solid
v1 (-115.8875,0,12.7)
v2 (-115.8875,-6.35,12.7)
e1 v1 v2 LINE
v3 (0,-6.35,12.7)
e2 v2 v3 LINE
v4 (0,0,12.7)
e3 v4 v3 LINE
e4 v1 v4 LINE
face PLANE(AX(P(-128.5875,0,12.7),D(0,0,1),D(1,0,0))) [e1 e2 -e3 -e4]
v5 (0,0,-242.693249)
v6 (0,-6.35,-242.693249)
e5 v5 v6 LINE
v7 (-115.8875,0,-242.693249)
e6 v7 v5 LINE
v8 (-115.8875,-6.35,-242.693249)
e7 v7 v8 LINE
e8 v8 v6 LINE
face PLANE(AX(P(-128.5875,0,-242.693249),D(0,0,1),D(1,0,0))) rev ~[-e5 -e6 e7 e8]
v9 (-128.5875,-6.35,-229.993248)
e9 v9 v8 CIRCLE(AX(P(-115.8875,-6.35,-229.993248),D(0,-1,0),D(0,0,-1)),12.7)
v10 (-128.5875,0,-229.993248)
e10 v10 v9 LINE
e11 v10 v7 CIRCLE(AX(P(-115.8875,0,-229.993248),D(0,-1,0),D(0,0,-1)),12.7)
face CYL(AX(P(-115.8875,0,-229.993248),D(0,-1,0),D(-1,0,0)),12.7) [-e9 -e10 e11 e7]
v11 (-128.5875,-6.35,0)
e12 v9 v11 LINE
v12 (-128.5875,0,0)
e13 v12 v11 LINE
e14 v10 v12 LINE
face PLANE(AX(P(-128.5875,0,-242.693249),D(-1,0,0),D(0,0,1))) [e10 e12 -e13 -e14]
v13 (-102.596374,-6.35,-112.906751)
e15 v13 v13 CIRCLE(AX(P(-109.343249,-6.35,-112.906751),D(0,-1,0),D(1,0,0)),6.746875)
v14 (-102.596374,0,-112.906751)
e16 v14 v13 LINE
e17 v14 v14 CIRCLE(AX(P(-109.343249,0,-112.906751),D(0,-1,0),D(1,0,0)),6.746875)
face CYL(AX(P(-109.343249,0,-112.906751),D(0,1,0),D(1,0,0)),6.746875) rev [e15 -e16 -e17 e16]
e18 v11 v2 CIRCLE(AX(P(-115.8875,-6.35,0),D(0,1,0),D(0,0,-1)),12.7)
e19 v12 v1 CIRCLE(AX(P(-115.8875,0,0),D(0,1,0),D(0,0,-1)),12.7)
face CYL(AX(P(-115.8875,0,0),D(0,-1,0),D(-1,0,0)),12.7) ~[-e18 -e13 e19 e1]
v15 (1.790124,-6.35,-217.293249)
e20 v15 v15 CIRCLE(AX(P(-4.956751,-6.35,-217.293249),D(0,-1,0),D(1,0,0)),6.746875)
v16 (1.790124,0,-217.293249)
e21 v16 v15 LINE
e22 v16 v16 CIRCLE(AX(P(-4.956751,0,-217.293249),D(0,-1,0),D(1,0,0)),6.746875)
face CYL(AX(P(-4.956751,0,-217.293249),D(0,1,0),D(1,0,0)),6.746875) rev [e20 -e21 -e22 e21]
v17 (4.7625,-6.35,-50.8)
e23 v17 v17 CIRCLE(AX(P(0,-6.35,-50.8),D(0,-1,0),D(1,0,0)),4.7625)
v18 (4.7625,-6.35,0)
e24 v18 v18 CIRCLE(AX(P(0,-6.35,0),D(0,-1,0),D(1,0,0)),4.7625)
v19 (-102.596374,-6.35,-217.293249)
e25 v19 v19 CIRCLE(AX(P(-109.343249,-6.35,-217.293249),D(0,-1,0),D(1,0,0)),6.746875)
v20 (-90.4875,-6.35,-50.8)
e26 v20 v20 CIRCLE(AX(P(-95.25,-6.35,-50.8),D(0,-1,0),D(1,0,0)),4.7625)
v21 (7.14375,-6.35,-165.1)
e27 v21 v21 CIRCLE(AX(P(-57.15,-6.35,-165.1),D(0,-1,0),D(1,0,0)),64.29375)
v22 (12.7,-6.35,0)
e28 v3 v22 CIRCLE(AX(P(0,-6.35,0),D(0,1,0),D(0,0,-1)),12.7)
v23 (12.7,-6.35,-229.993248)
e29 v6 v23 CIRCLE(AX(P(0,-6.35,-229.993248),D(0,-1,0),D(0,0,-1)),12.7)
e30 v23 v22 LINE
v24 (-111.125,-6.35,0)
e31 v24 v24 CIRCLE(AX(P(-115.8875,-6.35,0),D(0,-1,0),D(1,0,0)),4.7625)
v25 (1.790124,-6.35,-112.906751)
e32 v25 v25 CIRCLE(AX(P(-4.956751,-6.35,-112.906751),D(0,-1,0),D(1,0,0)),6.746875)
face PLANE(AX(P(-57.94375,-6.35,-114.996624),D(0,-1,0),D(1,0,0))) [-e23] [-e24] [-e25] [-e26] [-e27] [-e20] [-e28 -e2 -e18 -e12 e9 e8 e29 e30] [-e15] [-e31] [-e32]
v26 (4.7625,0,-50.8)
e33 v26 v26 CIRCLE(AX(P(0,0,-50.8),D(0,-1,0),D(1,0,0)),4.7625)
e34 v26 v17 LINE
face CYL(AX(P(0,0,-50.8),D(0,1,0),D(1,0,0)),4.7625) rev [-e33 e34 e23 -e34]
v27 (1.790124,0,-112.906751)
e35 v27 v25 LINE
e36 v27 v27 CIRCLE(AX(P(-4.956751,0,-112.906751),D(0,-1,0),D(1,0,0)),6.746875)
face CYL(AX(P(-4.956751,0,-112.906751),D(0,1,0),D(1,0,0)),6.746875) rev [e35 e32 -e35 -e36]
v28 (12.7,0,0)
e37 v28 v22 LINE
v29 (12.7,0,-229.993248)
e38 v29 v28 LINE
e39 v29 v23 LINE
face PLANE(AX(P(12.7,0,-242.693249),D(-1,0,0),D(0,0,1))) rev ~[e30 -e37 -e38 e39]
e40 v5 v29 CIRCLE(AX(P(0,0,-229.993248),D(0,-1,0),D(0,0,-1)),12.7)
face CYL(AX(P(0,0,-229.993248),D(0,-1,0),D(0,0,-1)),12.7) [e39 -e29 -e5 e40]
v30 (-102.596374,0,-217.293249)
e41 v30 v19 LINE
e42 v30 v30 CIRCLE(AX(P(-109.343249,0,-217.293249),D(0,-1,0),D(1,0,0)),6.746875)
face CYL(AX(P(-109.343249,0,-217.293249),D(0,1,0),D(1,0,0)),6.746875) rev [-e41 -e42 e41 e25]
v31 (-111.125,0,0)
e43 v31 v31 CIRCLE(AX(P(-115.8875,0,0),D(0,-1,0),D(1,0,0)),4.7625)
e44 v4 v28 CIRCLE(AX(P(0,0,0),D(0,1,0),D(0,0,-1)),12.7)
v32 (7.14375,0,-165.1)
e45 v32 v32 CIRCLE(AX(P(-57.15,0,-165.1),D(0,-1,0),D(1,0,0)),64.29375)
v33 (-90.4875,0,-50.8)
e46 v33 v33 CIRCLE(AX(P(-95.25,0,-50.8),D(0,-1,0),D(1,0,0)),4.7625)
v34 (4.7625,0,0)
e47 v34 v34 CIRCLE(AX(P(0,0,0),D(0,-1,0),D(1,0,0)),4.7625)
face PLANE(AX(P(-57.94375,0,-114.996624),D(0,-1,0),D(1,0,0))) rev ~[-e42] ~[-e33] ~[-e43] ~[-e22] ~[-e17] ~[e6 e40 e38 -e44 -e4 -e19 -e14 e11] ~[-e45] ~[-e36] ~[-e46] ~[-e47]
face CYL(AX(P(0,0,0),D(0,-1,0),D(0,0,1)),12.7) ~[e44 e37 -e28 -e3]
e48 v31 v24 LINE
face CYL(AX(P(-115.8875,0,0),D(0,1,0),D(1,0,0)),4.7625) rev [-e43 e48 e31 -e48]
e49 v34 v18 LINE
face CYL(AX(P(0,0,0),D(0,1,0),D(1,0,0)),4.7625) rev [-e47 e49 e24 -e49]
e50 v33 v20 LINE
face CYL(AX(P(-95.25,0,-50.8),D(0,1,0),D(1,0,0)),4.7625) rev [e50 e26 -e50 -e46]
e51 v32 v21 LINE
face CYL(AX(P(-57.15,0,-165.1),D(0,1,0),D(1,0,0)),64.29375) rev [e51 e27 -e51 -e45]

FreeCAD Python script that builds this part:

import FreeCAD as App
import Part
import Sketcher
Q = App.Units.Quantity


def edges_at(feature, points):
    """Names of the edges that pass closest to the given points."""
    edges = feature.Shape.Edges
    near = lambda p: min(range(len(edges)), key=lambda i: edges[i].distToShape(Part.Vertex(*p))[0])
    return sorted({f"Edge{near(p) + 1}" for p in points})

doc = App.newDocument("Part")
body = doc.addObject("PartDesign::Body", "Body")

sketch1 = body.newObject("Sketcher::SketchObject", "Sketch")
sketch1.AttachmentSupport = (doc.getObject("XZ_Plane"), [""])
sketch1.MapMode = "FlatFace"
sketch1.addGeometry([
    Part.LineSegment(App.Vector(-128.6, 12.7, 0), App.Vector(-128.6, -242.7, 0)),
    Part.LineSegment(App.Vector(-128.6, -242.7, 0), App.Vector(12.7, -242.7, 0)),
    Part.LineSegment(App.Vector(12.7, -242.7, 0), App.Vector(12.7, 12.7, 0)),
    Part.LineSegment(App.Vector(12.7, 12.7, 0), App.Vector(-128.6, 12.7, 0)),
    Part.Circle(App.Vector(-109.3, -217.3, 0), App.Vector(0, 0, 1), 6.7),
    Part.Circle(App.Vector(-109.3, -112.9, 0), App.Vector(0, 0, 1), 6.7),
    Part.Circle(App.Vector(-5, -217.3, 0), App.Vector(0, 0, 1), 6.7),
    Part.Circle(App.Vector(-57.1, -165.1, 0), App.Vector(0, 0, 1), 64.3),
    Part.Circle(App.Vector(-5, -112.9, 0), App.Vector(0, 0, 1), 6.7),
    Part.Circle(App.Vector(-95.2, -50.8, 0), App.Vector(0, 0, 1), 4.8),
    Part.Circle(App.Vector(-115.9, 0, 0), App.Vector(0, 0, 1), 4.8),
    Part.Circle(App.Vector(0, -50.8, 0), App.Vector(0, 0, 1), 4.8),
    Part.Circle(App.Vector(0, 0, 0), App.Vector(0, 0, 1), 4.8),
], False)
sketch1.addConstraint([
    Sketcher.Constraint("Coincident", 0, 2, 1, 1),
    Sketcher.Constraint("Coincident", 1, 2, 2, 1),
    Sketcher.Constraint("Coincident", 2, 2, 3, 1),
    Sketcher.Constraint("Coincident", 3, 2, 0, 1),
    Sketcher.Constraint("Vertical", 0),
    Sketcher.Constraint("Horizontal", 1),
    Sketcher.Constraint("Vertical", 2),
    Sketcher.Constraint("Horizontal", 3),
    Sketcher.Constraint("Coincident", 12, 3, -1, 1),
    Sketcher.Constraint("Equal", 4, 5),
    Sketcher.Constraint("Equal", 5, 6),
    Sketcher.Constraint("Equal", 6, 8),
    Sketcher.Constraint("Equal", 9, 10),
    Sketcher.Constraint("Equal", 10, 11),
    Sketcher.Constraint("Equal", 11, 12),
    Sketcher.Constraint("PointOnObject", 10, 3, -1),
    Sketcher.Constraint("PointOnObject", 11, 3, -2),
    Sketcher.Constraint("Horizontal", 4, 3, 6, 3),
    Sketcher.Constraint("Horizontal", 5, 3, 8, 3),
    Sketcher.Constraint("Horizontal", 9, 3, 11, 3),
    Sketcher.Constraint("Vertical", 4, 3, 5, 3),
    Sketcher.Constraint("Vertical", 6, 3, 8, 3),
    Sketcher.Constraint("Diameter", 4, Q("0.53125 in")),
    Sketcher.Constraint("Diameter", 7, Q("5.0625 in")),
    Sketcher.Constraint("Diameter", 9, Q("0.375 in")),
    Sketcher.Constraint("DistanceY", 9, 3, -1, 1, Q("2 in")),
    Sketcher.Constraint("DistanceY", 0, 2, 4, 3, Q("1 in")),
    Sketcher.Constraint("DistanceY", 7, 3, -1, 1, Q("6.5 in")),
    Sketcher.Constraint("DistanceX", -1, 1, 1, 2, Q("0.5 in")),
    Sketcher.Constraint("DistanceY", -1, 1, 2, 2, Q("0.5 in")),
    Sketcher.Constraint("DistanceX", 9, 3, 7, 3, Q("1.5 in")),
    Sketcher.Constraint("DistanceX", 3, 2, 10, 3, Q("0.5 in")),
    Sketcher.Constraint("DistanceX", 1, 1, 1, 2, Q("5.5625 in")),
    Sketcher.Constraint("DistanceX", 7, 3, -1, 1, Q("2.25 in")),
    Sketcher.Constraint("DistanceY", 0, 2, 0, 1, 255.393249),
    Sketcher.Constraint("DistanceY", 4, 3, 5, 3, 104.386498),
    Sketcher.Constraint("DistanceX", 4, 3, 6, 3, 104.386498),
    Sketcher.Constraint("DistanceX", 4, 3, -1, 1, 109.343249),
])
pad1 = body.newObject("PartDesign::Pad", "Pad")
pad1.Profile = sketch1
pad1.Length = Q("0.25 in")
doc.recompute()

fillet = body.newObject("PartDesign::Fillet", "Fillet")
fillet.Base = (pad1, edges_at(pad1, [
    (-128.588, -3.175, -242.693),
    (12.7, -3.175, -242.693),
    (12.7, -3.175, 12.7),
    (-128.588, -3.175, 12.7),
]))
fillet.Radius = Q("0.5 in")

doc.recompute()
